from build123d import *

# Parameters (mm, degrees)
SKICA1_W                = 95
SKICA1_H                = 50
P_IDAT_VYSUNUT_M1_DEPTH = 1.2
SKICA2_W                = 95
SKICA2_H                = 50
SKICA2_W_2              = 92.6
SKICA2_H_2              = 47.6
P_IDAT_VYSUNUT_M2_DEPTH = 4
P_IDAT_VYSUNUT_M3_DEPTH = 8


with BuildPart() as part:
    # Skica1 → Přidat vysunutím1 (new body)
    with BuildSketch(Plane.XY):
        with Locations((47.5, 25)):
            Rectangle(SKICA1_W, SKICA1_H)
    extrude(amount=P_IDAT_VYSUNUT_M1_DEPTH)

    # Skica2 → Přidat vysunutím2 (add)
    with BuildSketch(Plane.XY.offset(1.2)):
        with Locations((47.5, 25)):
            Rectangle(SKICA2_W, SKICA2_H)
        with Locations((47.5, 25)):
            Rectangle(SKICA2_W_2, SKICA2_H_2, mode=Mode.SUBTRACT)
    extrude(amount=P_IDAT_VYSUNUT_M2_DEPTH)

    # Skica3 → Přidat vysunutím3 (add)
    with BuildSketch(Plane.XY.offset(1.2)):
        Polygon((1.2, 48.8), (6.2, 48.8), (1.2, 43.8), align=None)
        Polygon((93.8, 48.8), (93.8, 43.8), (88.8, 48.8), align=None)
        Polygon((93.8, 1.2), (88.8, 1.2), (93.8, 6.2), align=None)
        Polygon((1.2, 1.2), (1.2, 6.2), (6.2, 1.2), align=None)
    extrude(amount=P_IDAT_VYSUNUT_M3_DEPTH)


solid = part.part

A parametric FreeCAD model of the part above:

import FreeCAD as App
import Part
import Sketcher
Q = App.Units.Quantity


def add_polygon(sketch, points):
    """Adds a closed chain of lines whose ends are joined by coincident constraints."""
    first, n = sketch.GeometryCount, len(points)
    for a, b in zip(points, points[1:] + points[:1]):
        sketch.addGeometry(Part.LineSegment(App.Vector(*a, 0), App.Vector(*b, 0)), False)
    for i in range(n):
        sketch.addConstraint(Sketcher.Constraint("Coincident", first + i, 2, first + (i + 1) % n, 1))

doc = App.newDocument("Part")
body = doc.addObject("PartDesign::Body", "Body")

sketch1 = doc.addObject("Sketcher::SketchObject", "Sketch")
body.addObject(sketch1)
sketch1.AttachmentSupport = (doc.XY_Plane, [""])
sketch1.MapMode = "FlatFace"
add_polygon(sketch1, [(0, 50), (0, 0), (95, 0), (95, 50)])
sketch1.addConstraint(Sketcher.Constraint("Vertical", 0))
sketch1.addConstraint(Sketcher.Constraint("Horizontal", 1))
sketch1.addConstraint(Sketcher.Constraint("Vertical", 2))
sketch1.addConstraint(Sketcher.Constraint("Horizontal", 3))
sketch1.addConstraint(Sketcher.Constraint("Coincident", 0, 2, -1, 1))
sketch1.addConstraint(Sketcher.Constraint("DistanceX", 1, 1, 1, 2, Q("95 mm")))
sketch1.addConstraint(Sketcher.Constraint("DistanceY", 0, 2, 0, 1, Q("50 mm")))
pad1 = doc.addObject("PartDesign::Pad", "Pad")
body.addObject(pad1)
pad1.Profile = sketch1
pad1.Length = 1.2

sketch2 = doc.addObject("Sketcher::SketchObject", "Sketch001")
body.addObject(sketch2)
sketch2.AttachmentSupport = (doc.XY_Plane, [""])
sketch2.MapMode = "FlatFace"
sketch2.AttachmentOffset = App.Placement(App.Vector(0, 0, 1.2), App.Rotation())
add_polygon(sketch2, [(0, 50), (0, 0), (95, 0), (95, 50)])
add_polygon(sketch2, [(94, 1), (1, 1), (1, 49), (94, 49)])
sketch2.addConstraint(Sketcher.Constraint("Vertical", 0))
sketch2.addConstraint(Sketcher.Constraint("Horizontal", 1))
sketch2.addConstraint(Sketcher.Constraint("Vertical", 2))
sketch2.addConstraint(Sketcher.Constraint("Horizontal", 3))
sketch2.addConstraint(Sketcher.Constraint("Horizontal", 4))
sketch2.addConstraint(Sketcher.Constraint("Vertical", 5))
sketch2.addConstraint(Sketcher.Constraint("Horizontal", 6))
sketch2.addConstraint(Sketcher.Constraint("Vertical", 7))
sketch2.addConstraint(Sketcher.Constraint("Coincident", 0, 2, -1, 1))
sketch2.addConstraint(Sketcher.Constraint("DistanceX", 1, 1, 1, 2, Q("95 mm")))
sketch2.addConstraint(Sketcher.Constraint("DistanceY", 0, 2, 0, 1, Q("50 mm")))
sketch2.addConstraint(Sketcher.Constraint("DistanceX", 4, 2, 4, 1, Q("92.6 mm")))
sketch2.addConstraint(Sketcher.Constraint("DistanceY", 5, 1, 5, 2, Q("47.6 mm")))
sketch2.addConstraint(Sketcher.Constraint("DistanceX", -1, 1, 4, 2, Q("1.2 mm")))
sketch2.addConstraint(Sketcher.Constraint("DistanceY", -1, 1, 4, 2, Q("1.2 mm")))
pad2 = doc.addObject("PartDesign::Pad", "Pad001")
body.addObject(pad2)
pad2.Profile = sketch2
pad2.Length = 4

sketch3 = doc.addObject("Sketcher::SketchObject", "Sketch002")
body.addObject(sketch3)
sketch3.AttachmentSupport = (doc.XY_Plane, [""])
sketch3.MapMode = "FlatFace"
sketch3.AttachmentOffset = App.Placement(App.Vector(0, 0, 1.2), App.Rotation())
add_polygon(sketch3, [(6, 49), (1, 49), (1, 44)])
add_polygon(sketch3, [(94, 44), (94, 49), (89, 49)])
add_polygon(sketch3, [(89, 1), (94, 1), (94, 6)])
add_polygon(sketch3, [(1, 6), (1, 1), (6, 1)])
sketch3.addConstraint(Sketcher.Constraint("Horizontal", 0))
sketch3.addConstraint(Sketcher.Constraint("Vertical", 1))
sketch3.addConstraint(Sketcher.Constraint("Vertical", 3))
sketch3.addConstraint(Sketcher.Constraint("Horizontal", 4))
sketch3.addConstraint(Sketcher.Constraint("Horizontal", 6))
sketch3.addConstraint(Sketcher.Constraint("Vertical", 7))
sketch3.addConstraint(Sketcher.Constraint("Vertical", 9))
sketch3.addConstraint(Sketcher.Constraint("Horizontal", 10))
sketch3.addConstraint(Sketcher.Constraint("Perpendicular", 2, 5))
sketch3.addConstraint(Sketcher.Constraint("Perpendicular", 5, 8))
sketch3.addConstraint(Sketcher.Constraint("Perpendicular", 8, 11))
sketch3.addConstraint(Sketcher.Constraint("Horizontal", 2, 2, 3, 2))
sketch3.addConstraint(Sketcher.Constraint("Horizontal", 1, 2, 5, 2))
sketch3.addConstraint(Sketcher.Constraint("Horizontal", 8, 2, 9, 2))
sketch3.addConstraint(Sketcher.Constraint("Horizontal", 7, 2, 11, 2))
sketch3.addConstraint(Sketcher.Constraint("Vertical", 5, 2, 6, 2))
sketch3.addConstraint(Sketcher.Constraint("Vertical", 4, 2, 8, 2))
sketch3.addConstraint(Sketcher.Constraint("Vertical", 1, 2, 9, 2))
sketch3.addConstraint(Sketcher.Constraint("Vertical", 2, 2, 10, 2))
sketch3.addConstraint(Sketcher.Constraint("DistanceX", 0, 2, 0, 1, Q("5 mm")))
sketch3.addConstraint(Sketcher.Constraint("DistanceX", -1, 1, 0, 2, Q("1.2 mm")))
sketch3.addConstraint(Sketcher.Constraint("DistanceY", -1, 1, 0, 2, Q("48.8 mm")))
sketch3.addConstraint(Sketcher.Constraint("DistanceX", -1, 1, 3, 2, Q("93.8 mm")))
sketch3.addConstraint(Sketcher.Constraint("DistanceY", -1, 1, 6, 2, Q("1.2 mm")))
pad3 = doc.addObject("PartDesign::Pad", "Pad002")
body.addObject(pad3)
pad3.Profile = sketch3
pad3.Length = 8

doc.recompute()
